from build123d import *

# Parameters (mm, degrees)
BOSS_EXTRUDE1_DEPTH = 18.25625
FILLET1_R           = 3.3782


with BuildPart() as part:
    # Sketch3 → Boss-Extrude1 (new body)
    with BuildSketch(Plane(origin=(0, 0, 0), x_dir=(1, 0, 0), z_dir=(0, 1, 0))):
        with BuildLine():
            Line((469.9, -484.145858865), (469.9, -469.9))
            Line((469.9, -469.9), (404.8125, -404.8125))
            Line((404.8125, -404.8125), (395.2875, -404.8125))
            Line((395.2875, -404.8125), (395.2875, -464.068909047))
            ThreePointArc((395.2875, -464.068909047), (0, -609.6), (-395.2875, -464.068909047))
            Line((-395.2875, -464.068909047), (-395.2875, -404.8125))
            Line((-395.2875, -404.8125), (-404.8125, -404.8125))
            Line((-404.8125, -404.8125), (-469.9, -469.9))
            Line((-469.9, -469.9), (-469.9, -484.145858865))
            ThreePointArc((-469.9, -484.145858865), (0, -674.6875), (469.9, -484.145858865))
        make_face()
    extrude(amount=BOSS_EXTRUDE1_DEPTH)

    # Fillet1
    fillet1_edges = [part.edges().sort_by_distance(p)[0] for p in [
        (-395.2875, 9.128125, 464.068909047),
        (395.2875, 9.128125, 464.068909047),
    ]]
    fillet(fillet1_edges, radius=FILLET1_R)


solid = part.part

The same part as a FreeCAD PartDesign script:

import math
import FreeCAD as App
import Part
import Sketcher
Q = App.Units.Quantity


def edges_at(feature, points):
    """Names of the edges that pass closest to the given points."""
    edges = feature.Shape.Edges
    near = lambda p: min(range(len(edges)), key=lambda i: edges[i].distToShape(Part.Vertex(*p))[0])
    return sorted({f"Edge{near(p) + 1}" for p in points})

doc = App.newDocument("Part")
body = doc.addObject("PartDesign::Body", "Body")

sketch1 = doc.addObject("Sketcher::SketchObject", "Sketch")
body.addObject(sketch1)
sketch1.AttachmentSupport = (doc.XZ_Plane, [""])
sketch1.MapMode = "FlatFace"
sketch1.addGeometry([
    Part.LineSegment(App.Vector(470, 484, 0), App.Vector(470, 470, 0)),
    Part.LineSegment(App.Vector(470, 470, 0), App.Vector(405, 405, 0)),
    Part.LineSegment(App.Vector(405, 405, 0), App.Vector(395, 405, 0)),
    Part.LineSegment(App.Vector(395, 405, 0), App.Vector(395, 464, 0)),
    Part.ArcOfCircle(Part.Circle(App.Vector(0, 0, 0), App.Vector(0, 0, 1), 610), math.radians(50), math.radians(130)),
    Part.LineSegment(App.Vector(-395, 464, 0), App.Vector(-395, 405, 0)),
    Part.LineSegment(App.Vector(-395, 405, 0), App.Vector(-405, 405, 0)),
    Part.LineSegment(App.Vector(-405, 405, 0), App.Vector(-470, 470, 0)),
    Part.LineSegment(App.Vector(-470, 470, 0), App.Vector(-470, 484, 0)),
    Part.ArcOfCircle(Part.Circle(App.Vector(0, 0, 0), App.Vector(0, 0, 1), 675), math.radians(46), math.radians(134)),
], False)
sketch1.addConstraint([
    Sketcher.Constraint("Coincident", 0, 2, 1, 1),
    Sketcher.Constraint("Coincident", 1, 2, 2, 1),
    Sketcher.Constraint("Coincident", 2, 2, 3, 1),
    Sketcher.Constraint("Coincident", 3, 2, 4, 1),
    Sketcher.Constraint("Coincident", 4, 2, 5, 1),
    Sketcher.Constraint("Coincident", 5, 2, 6, 1),
    Sketcher.Constraint("Coincident", 6, 2, 7, 1),
    Sketcher.Constraint("Coincident", 7, 2, 8, 1),
    Sketcher.Constraint("Coincident", 8, 2, 9, 2),
    Sketcher.Constraint("Coincident", 9, 1, 0, 1),
    Sketcher.Constraint("Vertical", 0),
    Sketcher.Constraint("Horizontal", 2),
    Sketcher.Constraint("Vertical", 3),
    Sketcher.Constraint("Vertical", 5),
    Sketcher.Constraint("Horizontal", 6),
    Sketcher.Constraint("Vertical", 8),
    Sketcher.Constraint("Coincident", 4, 3, -1, 1),
    Sketcher.Constraint("Coincident", 9, 3, -1, 1),
    Sketcher.Constraint("Symmetric", 2, 2, 5, 2, -2),
    Sketcher.Constraint("Symmetric", 0, 2, 7, 2, -2),
    Sketcher.Constraint("Perpendicular", 1, 7),
    Sketcher.Constraint("Equal", 2, 6),
    Sketcher.Constraint("Radius", 4, Q("24 in")),
    Sketcher.Constraint("Radius", 9, Q("26.5625 in")),
    Sketcher.Constraint("DistanceX", -1, 1, 0, 2, Q("18.5 in")),
    Sketcher.Constraint("DistanceY", -1, 1, 0, 2, Q("18.5 in")),
    Sketcher.Constraint("DistanceX", 6, 2, 2, 2, Q("31.5 in")),
    Sketcher.Constraint("DistanceX", 2, 2, 2, 1, Q("0.375 in")),
])
pad1 = doc.addObject("PartDesign::Pad", "Pad")
body.addObject(pad1)
pad1.Profile = sketch1
pad1.Length = Q("0.71875 in")
pad1.Reversed = True
doc.recompute()

fillet = doc.addObject("PartDesign::Fillet", "Fillet")
body.addObject(fillet)
fillet.Base = (pad1, edges_at(pad1, [(-395.288, 9.128, 464.069), (395.288, 9.128, 464.069)]))
fillet.Radius = Q("0.133 in")

doc.recompute()
